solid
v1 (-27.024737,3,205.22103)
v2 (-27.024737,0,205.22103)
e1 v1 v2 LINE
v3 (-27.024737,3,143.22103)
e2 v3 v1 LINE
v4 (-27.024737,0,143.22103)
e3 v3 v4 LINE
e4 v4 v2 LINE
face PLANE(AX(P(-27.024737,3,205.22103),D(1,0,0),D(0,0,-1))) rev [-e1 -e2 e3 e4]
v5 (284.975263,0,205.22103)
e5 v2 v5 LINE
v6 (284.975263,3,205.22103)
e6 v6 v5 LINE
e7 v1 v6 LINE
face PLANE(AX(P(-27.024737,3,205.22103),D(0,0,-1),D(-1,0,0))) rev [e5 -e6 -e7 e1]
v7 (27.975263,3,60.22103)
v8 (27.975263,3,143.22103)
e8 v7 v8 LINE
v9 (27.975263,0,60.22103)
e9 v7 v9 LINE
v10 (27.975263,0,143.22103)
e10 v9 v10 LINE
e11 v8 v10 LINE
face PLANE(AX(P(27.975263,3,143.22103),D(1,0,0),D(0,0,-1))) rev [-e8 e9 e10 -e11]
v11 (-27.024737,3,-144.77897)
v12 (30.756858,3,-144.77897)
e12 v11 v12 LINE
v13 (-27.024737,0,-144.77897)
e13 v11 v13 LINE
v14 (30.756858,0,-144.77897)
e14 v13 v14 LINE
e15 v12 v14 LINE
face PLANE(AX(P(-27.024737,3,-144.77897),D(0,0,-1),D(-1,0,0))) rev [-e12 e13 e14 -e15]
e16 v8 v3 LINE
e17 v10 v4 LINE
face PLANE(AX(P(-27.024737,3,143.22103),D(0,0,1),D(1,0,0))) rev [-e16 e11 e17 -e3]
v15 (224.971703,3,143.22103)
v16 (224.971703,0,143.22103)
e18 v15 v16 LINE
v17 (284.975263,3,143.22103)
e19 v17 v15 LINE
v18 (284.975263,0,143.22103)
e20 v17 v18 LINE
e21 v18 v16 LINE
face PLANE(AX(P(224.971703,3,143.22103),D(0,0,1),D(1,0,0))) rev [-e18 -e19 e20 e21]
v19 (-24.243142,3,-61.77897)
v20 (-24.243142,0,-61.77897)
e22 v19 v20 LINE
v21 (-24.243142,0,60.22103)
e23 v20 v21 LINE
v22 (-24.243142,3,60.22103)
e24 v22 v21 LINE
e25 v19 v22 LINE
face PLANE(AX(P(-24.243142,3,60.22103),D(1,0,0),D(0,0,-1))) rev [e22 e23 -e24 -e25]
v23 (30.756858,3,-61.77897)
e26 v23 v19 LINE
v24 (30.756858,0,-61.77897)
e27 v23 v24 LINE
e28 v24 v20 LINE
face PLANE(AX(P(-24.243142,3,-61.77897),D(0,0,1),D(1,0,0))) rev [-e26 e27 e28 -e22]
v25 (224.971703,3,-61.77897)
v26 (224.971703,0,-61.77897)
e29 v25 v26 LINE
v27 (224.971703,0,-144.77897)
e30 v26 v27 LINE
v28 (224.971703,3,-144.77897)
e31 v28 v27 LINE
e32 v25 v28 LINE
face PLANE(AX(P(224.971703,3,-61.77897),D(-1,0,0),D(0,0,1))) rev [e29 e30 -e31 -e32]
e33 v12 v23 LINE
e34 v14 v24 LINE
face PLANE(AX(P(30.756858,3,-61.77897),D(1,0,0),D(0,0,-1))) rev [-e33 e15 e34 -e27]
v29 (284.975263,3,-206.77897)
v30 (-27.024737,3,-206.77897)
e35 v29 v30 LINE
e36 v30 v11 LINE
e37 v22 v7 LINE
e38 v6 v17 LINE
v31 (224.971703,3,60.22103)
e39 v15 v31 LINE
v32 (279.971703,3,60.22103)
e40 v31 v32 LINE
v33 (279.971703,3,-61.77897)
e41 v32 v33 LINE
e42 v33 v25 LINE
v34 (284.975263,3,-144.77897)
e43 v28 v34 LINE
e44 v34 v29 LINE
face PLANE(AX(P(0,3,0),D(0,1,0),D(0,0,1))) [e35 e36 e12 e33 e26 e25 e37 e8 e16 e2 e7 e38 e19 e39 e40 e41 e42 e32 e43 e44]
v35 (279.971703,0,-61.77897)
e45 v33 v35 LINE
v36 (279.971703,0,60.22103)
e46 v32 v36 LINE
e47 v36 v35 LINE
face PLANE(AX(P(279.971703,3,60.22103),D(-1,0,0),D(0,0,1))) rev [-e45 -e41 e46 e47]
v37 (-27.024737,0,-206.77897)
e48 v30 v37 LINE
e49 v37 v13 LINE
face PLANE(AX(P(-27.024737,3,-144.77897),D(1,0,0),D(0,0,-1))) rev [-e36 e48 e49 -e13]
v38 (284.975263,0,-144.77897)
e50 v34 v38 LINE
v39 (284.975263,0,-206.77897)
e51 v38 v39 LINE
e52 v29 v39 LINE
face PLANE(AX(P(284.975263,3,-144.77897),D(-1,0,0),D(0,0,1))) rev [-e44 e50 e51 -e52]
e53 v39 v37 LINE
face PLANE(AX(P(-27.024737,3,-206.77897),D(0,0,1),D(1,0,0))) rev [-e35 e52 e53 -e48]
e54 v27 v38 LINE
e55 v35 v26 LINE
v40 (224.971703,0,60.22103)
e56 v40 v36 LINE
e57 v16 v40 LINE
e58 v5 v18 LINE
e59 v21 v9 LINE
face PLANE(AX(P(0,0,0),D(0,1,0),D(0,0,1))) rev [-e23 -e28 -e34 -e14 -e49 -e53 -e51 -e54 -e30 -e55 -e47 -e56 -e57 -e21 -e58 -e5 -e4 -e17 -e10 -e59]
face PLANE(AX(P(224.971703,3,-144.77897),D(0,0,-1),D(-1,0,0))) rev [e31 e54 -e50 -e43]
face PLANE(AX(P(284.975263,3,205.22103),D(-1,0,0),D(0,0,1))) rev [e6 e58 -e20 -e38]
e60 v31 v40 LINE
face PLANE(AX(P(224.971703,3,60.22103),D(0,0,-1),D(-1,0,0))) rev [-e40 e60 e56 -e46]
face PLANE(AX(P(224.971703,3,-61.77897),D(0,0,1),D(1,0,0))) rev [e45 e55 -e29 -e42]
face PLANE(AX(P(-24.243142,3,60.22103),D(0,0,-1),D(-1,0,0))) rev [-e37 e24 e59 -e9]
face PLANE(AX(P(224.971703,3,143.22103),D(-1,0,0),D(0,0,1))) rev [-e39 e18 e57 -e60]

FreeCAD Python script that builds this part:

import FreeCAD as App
import Part
import Sketcher
Q = App.Units.Quantity


def add_polygon(sketch, points):
    """Adds a closed chain of lines whose ends are joined by coincident constraints."""
    first, n = sketch.GeometryCount, len(points)
    for a, b in zip(points, points[1:] + points[:1]):
        sketch.addGeometry(Part.LineSegment(App.Vector(*a, 0), App.Vector(*b, 0)), False)
    for i in range(n):
        sketch.addConstraint(Sketcher.Constraint("Coincident", first + i, 2, first + (i + 1) % n, 1))

doc = App.newDocument("Part")
body = doc.addObject("PartDesign::Body", "Body")

sketch1 = body.newObject("Sketcher::SketchObject", "Sketch")
sketch1.AttachmentSupport = (doc.getObject("XZ_Plane"), [""])
sketch1.MapMode = "FlatFace"
add_polygon(sketch1, [(-27.024737, -206.77897), (-27.024737, -144.77897), (30.756858, -144.77897), (30.756858, -61.77897), (-24.243142, -61.77897), (-24.243142, 60.22103), (27.975263, 60.22103), (27.975263, 143.22103), (-27.024737, 143.22103), (-27.024737, 205.22103), (284.975263, 205.22103), (284.975263, 143.22103), (224.971703, 143.22103), (224.971703, 60.22103), (279.971703, 60.22103), (279.971703, -61.77897), (224.971703, -61.77897), (224.971703, -144.77897), (284.975263, -144.77897), (284.975263, -206.77897)])
sketch1.addConstraint(Sketcher.Constraint("Vertical", 0))
sketch1.addConstraint(Sketcher.Constraint("Horizontal", 1))
sketch1.addConstraint(Sketcher.Constraint("Vertical", 2))
sketch1.addConstraint(Sketcher.Constraint("Horizontal", 3))
sketch1.addConstraint(Sketcher.Constraint("Vertical", 4))
sketch1.addConstraint(Sketcher.Constraint("Horizontal", 5))
sketch1.addConstraint(Sketcher.Constraint("Vertical", 6))
sketch1.addConstraint(Sketcher.Constraint("Horizontal", 7))
sketch1.addConstraint(Sketcher.Constraint("Vertical", 8))
sketch1.addConstraint(Sketcher.Constraint("Horizontal", 9))
sketch1.addConstraint(Sketcher.Constraint("Vertical", 10))
sketch1.addConstraint(Sketcher.Constraint("Horizontal", 11))
sketch1.addConstraint(Sketcher.Constraint("Vertical", 12))
sketch1.addConstraint(Sketcher.Constraint("Horizontal", 13))
sketch1.addConstraint(Sketcher.Constraint("Vertical", 14))
sketch1.addConstraint(Sketcher.Constraint("Horizontal", 15))
sketch1.addConstraint(Sketcher.Constraint("Vertical", 16))
sketch1.addConstraint(Sketcher.Constraint("Horizontal", 17))
sketch1.addConstraint(Sketcher.Constraint("Vertical", 18))
sketch1.addConstraint(Sketcher.Constraint("Horizontal", 19))
sketch1.addConstraint(Sketcher.Constraint("Horizontal", 7, 2, 10, 2))
sketch1.addConstraint(Sketcher.Constraint("Horizontal", 5, 2, 12, 2))
sketch1.addConstraint(Sketcher.Constraint("Horizontal", 3, 2, 14, 2))
sketch1.addConstraint(Sketcher.Constraint("Horizontal", 1, 2, 16, 2))
sketch1.addConstraint(Sketcher.Constraint("Vertical", 0, 2, 7, 2))
sketch1.addConstraint(Sketcher.Constraint("Vertical", 12, 2, 15, 2))
sketch1.addConstraint(Sketcher.Constraint("Vertical", 10, 2, 17, 2))
sketch1.addConstraint(Sketcher.Constraint("Equal", 3, 7))
sketch1.addConstraint(Sketcher.Constraint("Equal", 7, 13))
sketch1.addConstraint(Sketcher.Constraint("Equal", 2, 6))
sketch1.addConstraint(Sketcher.Constraint("Equal", 0, 8))
sketch1.addConstraint(Sketcher.Constraint("DistanceX", 3, 2, 3, 1, Q("55 mm")))
sketch1.addConstraint(Sketcher.Constraint("DistanceX", 9, 1, 9, 2, Q("312 mm")))
sketch1.addConstraint(Sketcher.Constraint("DistanceY", 0, 1, 0, 2, Q("62 mm")))
sketch1.addConstraint(Sketcher.Constraint("DistanceY", 2, 1, 2, 2, Q("83 mm")))
sketch1.addConstraint(Sketcher.Constraint("DistanceY", 4, 1, 4, 2, Q("122 mm")))
sketch1.addConstraint(Sketcher.Constraint("DistanceX", 11, 2, 11, 1, Q("60.00356 mm")))
sketch1.addConstraint(Sketcher.Constraint("DistanceX", 1, 1, 1, 2, Q("57.781595 mm")))
sketch1.addConstraint(Sketcher.Constraint("DistanceY", 0, 2, -1, 1, Q("144.77897 mm")))
sketch1.addConstraint(Sketcher.Constraint("DistanceX", -1, 1, 1, 2, Q("30.756858 mm")))
pad1 = body.newObject("PartDesign::Pad", "Pad")
pad1.Profile = sketch1
pad1.Length = 3
pad1.Reversed = True

doc.recompute()
